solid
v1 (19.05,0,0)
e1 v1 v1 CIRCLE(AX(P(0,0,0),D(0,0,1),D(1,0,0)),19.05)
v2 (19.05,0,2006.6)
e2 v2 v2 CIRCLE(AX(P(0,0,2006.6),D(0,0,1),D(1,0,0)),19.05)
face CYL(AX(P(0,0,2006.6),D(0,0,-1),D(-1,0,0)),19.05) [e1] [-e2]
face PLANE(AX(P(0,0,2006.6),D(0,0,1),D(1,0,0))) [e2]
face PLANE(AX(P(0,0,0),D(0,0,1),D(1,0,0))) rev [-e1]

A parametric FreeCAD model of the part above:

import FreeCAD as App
import Part
import Sketcher
Q = App.Units.Quantity

doc = App.newDocument("Part")
body = doc.addObject("PartDesign::Body", "Body")

sketch1 = body.newObject("Sketcher::SketchObject", "Sketch")
sketch1.AttachmentSupport = (doc.getObject("XY_Plane"), [""])
sketch1.MapMode = "FlatFace"
sketch1.addGeometry(Part.Circle(App.Vector(0, 0, 0), App.Vector(0, 0, 1), 19), False)
sketch1.addConstraint([
    Sketcher.Constraint("Coincident", 0, 3, -1, 1),
    Sketcher.Constraint("Diameter", 0, Q("1.5 in")),
])
pad1 = body.newObject("PartDesign::Pad", "Pad")
pad1.Profile = sketch1
pad1.Length = Q("79 in")

doc.recompute()
